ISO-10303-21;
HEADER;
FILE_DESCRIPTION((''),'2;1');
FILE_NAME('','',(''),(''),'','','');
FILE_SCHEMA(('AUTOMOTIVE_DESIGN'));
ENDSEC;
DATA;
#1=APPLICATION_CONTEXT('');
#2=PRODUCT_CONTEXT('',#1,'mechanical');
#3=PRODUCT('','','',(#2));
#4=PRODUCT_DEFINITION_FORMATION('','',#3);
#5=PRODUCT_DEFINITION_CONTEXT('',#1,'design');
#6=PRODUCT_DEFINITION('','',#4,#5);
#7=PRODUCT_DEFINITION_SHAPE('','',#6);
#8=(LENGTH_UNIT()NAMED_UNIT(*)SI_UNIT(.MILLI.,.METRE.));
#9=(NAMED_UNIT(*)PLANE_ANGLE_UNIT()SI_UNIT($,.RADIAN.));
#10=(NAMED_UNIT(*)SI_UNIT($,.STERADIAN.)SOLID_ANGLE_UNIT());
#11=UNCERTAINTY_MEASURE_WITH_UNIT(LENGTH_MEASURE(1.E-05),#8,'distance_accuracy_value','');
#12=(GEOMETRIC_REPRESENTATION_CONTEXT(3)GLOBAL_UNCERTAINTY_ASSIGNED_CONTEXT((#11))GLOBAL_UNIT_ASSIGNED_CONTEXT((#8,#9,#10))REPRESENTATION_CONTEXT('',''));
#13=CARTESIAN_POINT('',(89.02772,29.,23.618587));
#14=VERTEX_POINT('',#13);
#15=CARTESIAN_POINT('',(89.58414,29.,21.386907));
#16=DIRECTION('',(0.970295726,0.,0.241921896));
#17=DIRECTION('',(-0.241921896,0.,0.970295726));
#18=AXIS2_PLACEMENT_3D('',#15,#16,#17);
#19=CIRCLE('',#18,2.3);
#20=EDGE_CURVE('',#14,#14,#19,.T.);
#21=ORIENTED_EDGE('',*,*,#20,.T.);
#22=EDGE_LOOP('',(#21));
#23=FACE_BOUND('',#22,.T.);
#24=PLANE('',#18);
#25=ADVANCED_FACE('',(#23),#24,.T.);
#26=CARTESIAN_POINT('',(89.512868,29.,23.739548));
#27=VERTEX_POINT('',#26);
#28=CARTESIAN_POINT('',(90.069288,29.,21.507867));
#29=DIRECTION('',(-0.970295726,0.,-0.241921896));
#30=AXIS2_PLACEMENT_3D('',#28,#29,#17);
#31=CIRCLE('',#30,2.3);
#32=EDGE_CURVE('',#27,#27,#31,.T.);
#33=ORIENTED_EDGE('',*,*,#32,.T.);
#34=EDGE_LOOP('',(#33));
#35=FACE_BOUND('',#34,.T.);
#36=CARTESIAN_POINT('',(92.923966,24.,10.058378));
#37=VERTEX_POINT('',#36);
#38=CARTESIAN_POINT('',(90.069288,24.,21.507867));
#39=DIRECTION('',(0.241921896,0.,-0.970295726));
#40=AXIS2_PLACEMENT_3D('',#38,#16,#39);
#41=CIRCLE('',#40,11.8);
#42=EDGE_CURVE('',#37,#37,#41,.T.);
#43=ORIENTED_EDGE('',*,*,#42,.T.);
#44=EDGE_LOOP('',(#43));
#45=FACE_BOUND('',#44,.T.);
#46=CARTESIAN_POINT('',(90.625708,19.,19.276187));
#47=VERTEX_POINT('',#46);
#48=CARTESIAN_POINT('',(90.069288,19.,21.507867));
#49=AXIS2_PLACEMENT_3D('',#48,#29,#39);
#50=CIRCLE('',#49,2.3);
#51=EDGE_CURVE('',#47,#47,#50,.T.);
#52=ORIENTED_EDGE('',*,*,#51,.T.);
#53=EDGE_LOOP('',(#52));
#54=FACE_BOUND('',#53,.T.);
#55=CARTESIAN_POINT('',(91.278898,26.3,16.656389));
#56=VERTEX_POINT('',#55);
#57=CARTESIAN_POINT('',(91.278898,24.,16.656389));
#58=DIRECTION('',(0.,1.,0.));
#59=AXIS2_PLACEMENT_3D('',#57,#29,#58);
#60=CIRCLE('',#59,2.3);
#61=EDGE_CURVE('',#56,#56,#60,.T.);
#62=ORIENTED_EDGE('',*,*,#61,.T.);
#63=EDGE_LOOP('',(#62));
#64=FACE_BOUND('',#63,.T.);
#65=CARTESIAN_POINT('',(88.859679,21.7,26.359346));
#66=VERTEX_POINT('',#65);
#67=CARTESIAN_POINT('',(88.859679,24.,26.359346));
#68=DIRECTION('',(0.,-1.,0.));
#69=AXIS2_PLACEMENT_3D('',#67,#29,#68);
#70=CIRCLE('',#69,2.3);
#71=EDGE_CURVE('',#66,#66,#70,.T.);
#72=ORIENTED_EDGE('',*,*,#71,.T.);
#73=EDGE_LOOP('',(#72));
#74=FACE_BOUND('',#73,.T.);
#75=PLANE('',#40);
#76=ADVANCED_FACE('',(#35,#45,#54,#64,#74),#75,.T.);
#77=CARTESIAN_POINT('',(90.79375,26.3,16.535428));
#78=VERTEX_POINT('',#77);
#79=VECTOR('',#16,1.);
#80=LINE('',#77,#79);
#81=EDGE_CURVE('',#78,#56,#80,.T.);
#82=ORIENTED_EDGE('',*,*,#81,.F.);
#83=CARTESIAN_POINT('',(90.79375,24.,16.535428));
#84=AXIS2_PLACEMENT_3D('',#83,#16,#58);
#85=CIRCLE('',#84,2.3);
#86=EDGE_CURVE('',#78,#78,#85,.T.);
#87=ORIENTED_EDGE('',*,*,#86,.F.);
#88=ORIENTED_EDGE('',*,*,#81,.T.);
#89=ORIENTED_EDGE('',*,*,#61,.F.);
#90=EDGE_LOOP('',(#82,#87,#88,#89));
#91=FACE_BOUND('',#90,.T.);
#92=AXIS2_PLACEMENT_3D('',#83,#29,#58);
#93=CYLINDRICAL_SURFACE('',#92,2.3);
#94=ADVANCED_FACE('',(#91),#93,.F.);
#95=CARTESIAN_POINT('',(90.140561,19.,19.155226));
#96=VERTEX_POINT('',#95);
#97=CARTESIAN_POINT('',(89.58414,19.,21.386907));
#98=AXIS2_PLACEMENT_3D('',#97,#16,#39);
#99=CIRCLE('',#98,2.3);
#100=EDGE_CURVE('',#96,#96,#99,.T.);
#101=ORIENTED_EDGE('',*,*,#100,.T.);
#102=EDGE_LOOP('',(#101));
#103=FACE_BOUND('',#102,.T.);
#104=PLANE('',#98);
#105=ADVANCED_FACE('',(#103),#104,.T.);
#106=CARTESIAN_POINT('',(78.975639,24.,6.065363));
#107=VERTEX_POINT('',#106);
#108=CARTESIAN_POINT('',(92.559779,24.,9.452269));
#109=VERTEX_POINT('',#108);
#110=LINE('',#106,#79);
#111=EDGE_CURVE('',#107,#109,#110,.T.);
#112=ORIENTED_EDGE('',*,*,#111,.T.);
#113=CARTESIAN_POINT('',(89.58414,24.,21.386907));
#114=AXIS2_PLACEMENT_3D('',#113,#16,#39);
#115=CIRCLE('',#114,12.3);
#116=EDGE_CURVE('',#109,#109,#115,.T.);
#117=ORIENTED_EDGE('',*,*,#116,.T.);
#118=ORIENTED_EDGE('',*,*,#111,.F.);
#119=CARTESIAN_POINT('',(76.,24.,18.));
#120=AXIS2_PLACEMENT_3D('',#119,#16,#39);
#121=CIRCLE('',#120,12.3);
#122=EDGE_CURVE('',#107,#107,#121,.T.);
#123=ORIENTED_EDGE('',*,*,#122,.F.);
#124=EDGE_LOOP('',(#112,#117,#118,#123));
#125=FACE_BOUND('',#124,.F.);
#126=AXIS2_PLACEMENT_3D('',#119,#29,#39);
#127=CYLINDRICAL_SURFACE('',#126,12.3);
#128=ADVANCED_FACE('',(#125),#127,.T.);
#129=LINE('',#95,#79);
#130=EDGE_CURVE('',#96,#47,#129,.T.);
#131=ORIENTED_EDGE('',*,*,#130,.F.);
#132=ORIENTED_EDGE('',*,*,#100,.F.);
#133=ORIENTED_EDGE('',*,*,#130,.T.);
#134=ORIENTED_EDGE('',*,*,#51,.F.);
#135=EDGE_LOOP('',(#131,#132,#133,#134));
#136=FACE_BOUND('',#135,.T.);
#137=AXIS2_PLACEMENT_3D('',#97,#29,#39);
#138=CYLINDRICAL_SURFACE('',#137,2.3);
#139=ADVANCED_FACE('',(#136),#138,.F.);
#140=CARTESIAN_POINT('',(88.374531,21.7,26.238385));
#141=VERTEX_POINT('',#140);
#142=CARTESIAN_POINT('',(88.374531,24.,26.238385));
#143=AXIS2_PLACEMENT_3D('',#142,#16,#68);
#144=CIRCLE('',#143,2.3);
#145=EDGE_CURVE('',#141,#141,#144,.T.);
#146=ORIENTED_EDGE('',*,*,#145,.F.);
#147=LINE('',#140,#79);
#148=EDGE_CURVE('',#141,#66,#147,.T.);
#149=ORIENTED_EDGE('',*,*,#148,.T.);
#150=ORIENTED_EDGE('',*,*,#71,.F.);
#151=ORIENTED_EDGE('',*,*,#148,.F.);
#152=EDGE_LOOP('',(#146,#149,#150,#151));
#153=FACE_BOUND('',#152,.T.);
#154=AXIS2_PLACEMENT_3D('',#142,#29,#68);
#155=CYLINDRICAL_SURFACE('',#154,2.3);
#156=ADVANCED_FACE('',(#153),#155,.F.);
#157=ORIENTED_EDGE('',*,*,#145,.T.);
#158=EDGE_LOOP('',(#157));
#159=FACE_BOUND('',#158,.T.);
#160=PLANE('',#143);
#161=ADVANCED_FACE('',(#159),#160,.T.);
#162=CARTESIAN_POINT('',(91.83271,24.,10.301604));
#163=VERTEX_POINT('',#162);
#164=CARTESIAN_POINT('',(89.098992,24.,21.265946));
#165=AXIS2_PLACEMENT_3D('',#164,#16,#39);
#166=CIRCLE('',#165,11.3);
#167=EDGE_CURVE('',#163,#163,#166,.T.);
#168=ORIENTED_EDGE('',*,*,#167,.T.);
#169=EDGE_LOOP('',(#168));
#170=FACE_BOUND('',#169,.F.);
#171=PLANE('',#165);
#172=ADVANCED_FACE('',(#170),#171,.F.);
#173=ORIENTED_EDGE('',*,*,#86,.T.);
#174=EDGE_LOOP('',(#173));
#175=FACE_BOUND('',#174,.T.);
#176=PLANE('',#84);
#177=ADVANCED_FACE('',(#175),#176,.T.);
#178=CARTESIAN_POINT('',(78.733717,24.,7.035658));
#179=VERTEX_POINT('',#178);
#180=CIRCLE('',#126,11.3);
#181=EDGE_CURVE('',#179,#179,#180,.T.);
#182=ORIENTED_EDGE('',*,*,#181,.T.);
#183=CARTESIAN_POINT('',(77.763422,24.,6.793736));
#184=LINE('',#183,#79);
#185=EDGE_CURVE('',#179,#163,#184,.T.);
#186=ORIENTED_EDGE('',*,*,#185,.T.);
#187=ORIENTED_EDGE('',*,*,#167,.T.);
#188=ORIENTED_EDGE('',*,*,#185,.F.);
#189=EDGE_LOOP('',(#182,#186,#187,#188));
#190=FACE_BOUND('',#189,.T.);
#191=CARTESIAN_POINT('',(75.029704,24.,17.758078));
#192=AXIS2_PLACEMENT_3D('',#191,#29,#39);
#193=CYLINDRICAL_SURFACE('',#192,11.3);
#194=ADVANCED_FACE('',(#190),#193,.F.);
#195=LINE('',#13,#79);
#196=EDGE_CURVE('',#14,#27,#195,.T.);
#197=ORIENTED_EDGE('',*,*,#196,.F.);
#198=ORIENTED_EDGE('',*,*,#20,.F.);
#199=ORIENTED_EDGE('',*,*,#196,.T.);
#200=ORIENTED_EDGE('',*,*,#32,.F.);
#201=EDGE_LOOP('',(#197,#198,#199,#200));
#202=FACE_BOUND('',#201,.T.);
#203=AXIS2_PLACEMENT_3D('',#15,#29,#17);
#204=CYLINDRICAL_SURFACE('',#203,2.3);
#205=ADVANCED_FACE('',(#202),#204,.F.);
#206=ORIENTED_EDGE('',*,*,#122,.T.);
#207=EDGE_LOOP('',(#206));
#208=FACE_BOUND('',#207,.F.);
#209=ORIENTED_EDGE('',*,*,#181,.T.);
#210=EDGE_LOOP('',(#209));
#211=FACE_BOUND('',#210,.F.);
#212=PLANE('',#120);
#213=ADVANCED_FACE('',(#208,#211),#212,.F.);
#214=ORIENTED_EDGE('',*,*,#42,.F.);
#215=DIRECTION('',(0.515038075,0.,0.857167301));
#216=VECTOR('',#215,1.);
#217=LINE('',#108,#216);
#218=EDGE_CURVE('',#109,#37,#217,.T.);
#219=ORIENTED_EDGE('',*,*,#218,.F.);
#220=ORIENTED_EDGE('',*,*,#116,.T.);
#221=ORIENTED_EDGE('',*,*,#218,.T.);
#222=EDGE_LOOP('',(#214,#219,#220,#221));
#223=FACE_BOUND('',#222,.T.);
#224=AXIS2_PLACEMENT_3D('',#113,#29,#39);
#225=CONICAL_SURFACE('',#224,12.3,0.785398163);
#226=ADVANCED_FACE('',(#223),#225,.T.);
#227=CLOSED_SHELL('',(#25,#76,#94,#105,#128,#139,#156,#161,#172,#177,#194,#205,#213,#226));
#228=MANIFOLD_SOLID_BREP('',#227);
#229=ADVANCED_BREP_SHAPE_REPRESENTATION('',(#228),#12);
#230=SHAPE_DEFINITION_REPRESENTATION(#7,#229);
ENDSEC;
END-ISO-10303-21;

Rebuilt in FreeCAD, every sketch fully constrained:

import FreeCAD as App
import Part
import Sketcher
from FreeCAD import Vector


def edges_at(feature, points):
    """Names of the edges that pass closest to the given points."""
    edges = feature.Shape.Edges
    near = lambda p: min(range(len(edges)), key=lambda i: edges[i].distToShape(Part.Vertex(*p))[0])
    return sorted({f"Edge{near(p) + 1}" for p in points})

doc = App.newDocument("Part")
params = doc.addObject("Spreadsheet::Sheet", "Params")
for row, (alias, value) in enumerate([
    ("sketch1_diameter", "22.6 mm"),
    ("pad1_length", "14.5 mm"),
    ("sketch2_diameter", "4.6 mm"),
    ("pad2_length", "14.5 mm"),
    ("sketch3_diameter", "16.6 mm"),
    ("pad3_length", "14.5 mm"),
    ("sketch4_diameter", "24.6 mm"),
    ("pad4_length", "14.5 mm"),
    ("chamfer_size", "0.5 mm"),
], start=1):
    params.set(f"A{row}", alias)
    params.set(f"B{row}", "=" + value)
    params.setAlias(f"B{row}", alias)

body = doc.addObject("PartDesign::Body", "Body")

sketch1 = body.newObject("Sketcher::SketchObject", "Sketch")
sketch1.AttachmentSupport = (doc.getObject("XY_Plane"), [""])
sketch1.MapMode = "FlatFace"
sketch1.AttachmentOffset = App.Placement(Vector(0, 0, -1), App.Rotation())
sketch1.addGeometry(Part.Circle(Vector(0, 0, 0), Vector(0, 0, 1), 11), False)
sketch1.addConstraint(Sketcher.Constraint("Coincident", 0, 3, -1, 1))
sketch1.addConstraint(Sketcher.Constraint("Diameter", 0, 22.6))
sketch1.setExpression("Constraints[1]", "Params.sketch1_diameter")
pad1 = body.newObject("PartDesign::Pad", "Pad")
pad1.Profile = sketch1
pad1.setExpression("Length", "Params.pad1_length")
body2 = doc.addObject("PartDesign::Body", "Body001")

sketch2 = body2.newObject("Sketcher::SketchObject", "Sketch001")
sketch2.AttachmentSupport = (doc.getObject("XY_Plane001"), [""])
sketch2.MapMode = "FlatFace"
sketch2.AttachmentOffset = App.Placement(Vector(0, 0, 14), App.Rotation())
sketch2.addGeometry(Part.Circle(Vector(0, -5, 0), Vector(0, 0, 1), 2.3), False)
sketch2.addConstraint(Sketcher.Constraint("PointOnObject", 0, 3, -2))
sketch2.addConstraint(Sketcher.Constraint("Diameter", 0, 4.6))
sketch2.addConstraint(Sketcher.Constraint("DistanceY", 0, 3, -1, 1, 5.0))
sketch2.setExpression("Constraints[1]", "Params.sketch2_diameter")
pad2 = body2.newObject("PartDesign::Pad", "Pad001")
pad2.Profile = sketch2
pad2.setExpression("Length", "Params.pad2_length")
body3 = doc.addObject("PartDesign::Body", "Body002")
body3.AllowCompound = True
doc.recompute()

body3.BaseFeature = body2
doc.recompute()

body4 = doc.addObject("PartDesign::Body", "Body003")
body4.BaseFeature = body2
body4.Placement = App.Placement(Vector(0, 0, 0), App.Rotation(Vector(0, 0, 1), 90))
boolean = body3.newObject("PartDesign::Boolean", "Boolean")
boolean.Type = "Fuse"
boolean.addObjects([body4])
doc.recompute()

body5 = doc.addObject("PartDesign::Body", "Body004")
body5.BaseFeature = body2
body5.Placement = App.Placement(Vector(0, 0, 0), App.Rotation(Vector(0, 0, 1), 180))
boolean2 = body3.newObject("PartDesign::Boolean", "Boolean001")
boolean2.Type = "Fuse"
boolean2.addObjects([body5])
doc.recompute()

body2.Placement = App.Placement(Vector(0, 0, 0), App.Rotation(Vector(0, 0, 1), 270))
boolean3 = body3.newObject("PartDesign::Boolean", "Boolean002")
boolean3.Type = "Fuse"
boolean3.addObjects([body2])
body6 = doc.addObject("PartDesign::Body", "Body005")

sketch3 = body6.newObject("Sketcher::SketchObject", "Sketch002")
sketch3.AttachmentSupport = (doc.getObject("XY_Plane005"), [""])
sketch3.MapMode = "FlatFace"
sketch3.AttachmentOffset = App.Placement(Vector(0, 0, 14.5), App.Rotation())
sketch3.addGeometry(Part.Circle(Vector(0, 0, 0), Vector(0, 0, 1), 8), False)
sketch3.addConstraint(Sketcher.Constraint("Coincident", 0, 3, -1, 1))
sketch3.addConstraint(Sketcher.Constraint("Diameter", 0, 16.6))
sketch3.setExpression("Constraints[1]", "Params.sketch3_diameter")
pad3 = body6.newObject("PartDesign::Pad", "Pad002")
pad3.Profile = sketch3
pad3.setExpression("Length", "Params.pad3_length")
body7 = doc.addObject("PartDesign::Body", "Body006")

sketch4 = body7.newObject("Sketcher::SketchObject", "Sketch003")
sketch4.AttachmentSupport = (doc.getObject("XY_Plane006"), [""])
sketch4.MapMode = "FlatFace"
sketch4.addGeometry(Part.Circle(Vector(0, 0, 0), Vector(0, 0, 1), 12), False)
sketch4.addConstraint(Sketcher.Constraint("Coincident", 0, 3, -1, 1))
sketch4.addConstraint(Sketcher.Constraint("Diameter", 0, 24.6))
sketch4.setExpression("Constraints[1]", "Params.sketch4_diameter")
pad4 = body7.newObject("PartDesign::Pad", "Pad003")
pad4.Profile = sketch4
pad4.setExpression("Length", "Params.pad4_length")
doc.recompute()

boolean4 = body7.newObject("PartDesign::Boolean", "Boolean003")
boolean4.Type = "Cut"
boolean4.addObjects([body6])
doc.recompute()

boolean5 = body7.newObject("PartDesign::Boolean", "Boolean004")
boolean5.Type = "Cut"
boolean5.addObjects([body3])
doc.recompute()

boolean6 = body7.newObject("PartDesign::Boolean", "Boolean005")
boolean6.Type = "Cut"
boolean6.addObjects([body])
doc.recompute()

chamfer = body7.newObject("PartDesign::Chamfer", "Chamfer")
chamfer.Base = (boolean6, edges_at(boolean6, [(-12.3, 0, 14.5)]))
chamfer.setExpression("Size", "Params.chamfer_size")
body8 = doc.addObject("PartDesign::Body", "Body007")
doc.recompute()

body7.Placement = App.Placement(Vector(76, 24, 18), App.Rotation(Vector(0, 1, 0), 76))
boolean7 = body8.newObject("PartDesign::Boolean", "Boolean006")
boolean7.Type = "Fuse"
boolean7.addObjects([body7])

doc.recompute()
